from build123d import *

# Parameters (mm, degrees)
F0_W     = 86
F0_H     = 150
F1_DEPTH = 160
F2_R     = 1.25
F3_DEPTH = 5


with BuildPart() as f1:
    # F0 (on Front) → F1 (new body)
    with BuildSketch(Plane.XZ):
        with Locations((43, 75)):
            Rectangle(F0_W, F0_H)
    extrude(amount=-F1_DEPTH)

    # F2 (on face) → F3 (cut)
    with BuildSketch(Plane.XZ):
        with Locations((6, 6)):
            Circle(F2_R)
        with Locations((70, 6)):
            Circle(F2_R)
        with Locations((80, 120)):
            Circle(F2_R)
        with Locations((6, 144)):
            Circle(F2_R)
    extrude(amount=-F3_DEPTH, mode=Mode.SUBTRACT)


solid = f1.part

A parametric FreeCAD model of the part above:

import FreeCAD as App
import Part
import Sketcher
from FreeCAD import Vector


def add_polygon(sketch, points):
    """Adds a closed chain of lines whose ends are joined by coincident constraints."""
    first, n = sketch.GeometryCount, len(points)
    for a, b in zip(points, points[1:] + points[:1]):
        sketch.addGeometry(Part.LineSegment(App.Vector(*a, 0), App.Vector(*b, 0)), False)
    for i in range(n):
        sketch.addConstraint(Sketcher.Constraint("Coincident", first + i, 2, first + (i + 1) % n, 1))

doc = App.newDocument("Part")
params = doc.addObject("Spreadsheet::Sheet", "Params")
for row, (alias, value) in enumerate([
    ("sketch1_width", "86 mm"),
    ("sketch1_height", "150 mm"),
    ("pad1_length", "160 mm"),
    ("sketch2_diameter", "2.5 mm"),
    ("pocket1_length", "5 mm"),
], start=1):
    params.set(f"A{row}", alias)
    params.set(f"B{row}", "=" + value)
    params.setAlias(f"B{row}", alias)

body = doc.addObject("PartDesign::Body", "Body")

# Sketch on XZ plane
sketch1 = body.newObject("Sketcher::SketchObject", "Sketch")
sketch1.AttachmentSupport = (doc.getObject("XZ_Plane"), [""])
sketch1.MapMode = "FlatFace"
add_polygon(sketch1, [(0, 150), (0, 0), (86, 0), (86, 150)])  # lines 0-3
sketch1.addConstraint(Sketcher.Constraint("Vertical", 0))
sketch1.addConstraint(Sketcher.Constraint("Horizontal", 1))
sketch1.addConstraint(Sketcher.Constraint("Vertical", 2))
sketch1.addConstraint(Sketcher.Constraint("Horizontal", 3))
sketch1.addConstraint(Sketcher.Constraint("Coincident", 0, 2, -1, 1))
sketch1.addConstraint(Sketcher.Constraint("DistanceX", 1, 1, 1, 2, 86.0))
sketch1.addConstraint(Sketcher.Constraint("DistanceY", 0, 2, 0, 1, 150.0))
sketch1.setExpression("Constraints[9]", "Params.sketch1_width")
sketch1.setExpression("Constraints[10]", "Params.sketch1_height")
pad1 = body.newObject("PartDesign::Pad", "Pad")
pad1.Profile = sketch1
pad1.setExpression("Length", "Params.pad1_length")
pad1.Reversed = True

# Sketch on XZ plane
sketch2 = body.newObject("Sketcher::SketchObject", "Sketch001")
sketch2.AttachmentSupport = (doc.getObject("XZ_Plane"), [""])
sketch2.MapMode = "FlatFace"
sketch2.addGeometry(Part.Circle(Vector(6, 6, 0), Vector(0, 0, 1), 1.2), False)
sketch2.addGeometry(Part.Circle(Vector(70, 6, 0), Vector(0, 0, 1), 1.2), False)
sketch2.addGeometry(Part.Circle(Vector(80, 120, 0), Vector(0, 0, 1), 1.2), False)
sketch2.addGeometry(Part.Circle(Vector(6, 144, 0), Vector(0, 0, 1), 1.2), False)
sketch2.addConstraint(Sketcher.Constraint("Equal", 0, 1))
sketch2.addConstraint(Sketcher.Constraint("Equal", 1, 2))
sketch2.addConstraint(Sketcher.Constraint("Equal", 2, 3))
sketch2.addConstraint(Sketcher.Constraint("Horizontal", 0, 3, 1, 3))
sketch2.addConstraint(Sketcher.Constraint("Vertical", 0, 3, 3, 3))
sketch2.addConstraint(Sketcher.Constraint("Diameter", 0, 2.5))
sketch2.addConstraint(Sketcher.Constraint("DistanceX", -1, 1, 0, 3, 6.0))
sketch2.addConstraint(Sketcher.Constraint("DistanceY", -1, 1, 0, 3, 6.0))
sketch2.addConstraint(Sketcher.Constraint("DistanceX", -1, 1, 1, 3, 70.0))
sketch2.addConstraint(Sketcher.Constraint("DistanceX", -1, 1, 2, 3, 80.0))
sketch2.addConstraint(Sketcher.Constraint("DistanceY", -1, 1, 2, 3, 120.0))
sketch2.addConstraint(Sketcher.Constraint("DistanceY", -1, 1, 3, 3, 144.0))
sketch2.setExpression("Constraints[5]", "Params.sketch2_diameter")
pocket1 = body.newObject("PartDesign::Pocket", "Pocket")
pocket1.Profile = sketch2
pocket1.setExpression("Length", "Params.pocket1_length")

doc.recompute()
